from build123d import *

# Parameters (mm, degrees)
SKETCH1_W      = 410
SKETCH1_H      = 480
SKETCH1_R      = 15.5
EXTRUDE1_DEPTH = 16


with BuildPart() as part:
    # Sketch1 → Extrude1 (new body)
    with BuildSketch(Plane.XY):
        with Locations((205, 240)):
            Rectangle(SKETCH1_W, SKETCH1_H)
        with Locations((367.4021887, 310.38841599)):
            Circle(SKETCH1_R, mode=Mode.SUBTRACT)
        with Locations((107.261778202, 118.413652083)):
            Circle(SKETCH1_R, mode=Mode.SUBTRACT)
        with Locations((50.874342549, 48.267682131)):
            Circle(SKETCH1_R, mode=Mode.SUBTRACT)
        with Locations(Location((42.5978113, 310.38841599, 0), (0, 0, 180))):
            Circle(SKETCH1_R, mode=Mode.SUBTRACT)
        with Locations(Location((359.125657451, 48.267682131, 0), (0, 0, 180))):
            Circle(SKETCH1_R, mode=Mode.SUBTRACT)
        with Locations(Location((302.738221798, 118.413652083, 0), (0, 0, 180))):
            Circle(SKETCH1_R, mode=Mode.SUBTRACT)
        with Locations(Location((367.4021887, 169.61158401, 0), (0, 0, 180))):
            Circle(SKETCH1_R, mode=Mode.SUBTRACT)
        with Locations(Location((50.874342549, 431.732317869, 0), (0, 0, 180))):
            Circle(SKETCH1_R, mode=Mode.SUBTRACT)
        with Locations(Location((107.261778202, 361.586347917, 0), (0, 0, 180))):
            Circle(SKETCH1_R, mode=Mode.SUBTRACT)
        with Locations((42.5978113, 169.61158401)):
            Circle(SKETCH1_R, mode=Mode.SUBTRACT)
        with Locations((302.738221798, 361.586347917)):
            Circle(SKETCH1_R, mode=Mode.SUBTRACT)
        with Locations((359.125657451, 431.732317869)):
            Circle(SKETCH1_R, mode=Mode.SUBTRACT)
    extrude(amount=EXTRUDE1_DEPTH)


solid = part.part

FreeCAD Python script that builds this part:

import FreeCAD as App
import Part
import Sketcher

doc = App.newDocument("Part")
body = doc.addObject("PartDesign::Body", "Body")

sketch1 = body.newObject("Sketcher::SketchObject", "Sketch")
sketch1.AttachmentSupport = (doc.getObject("XY_Plane"), [""])
sketch1.MapMode = "FlatFace"
sketch1.addGeometry(Part.LineSegment(App.Vector(0, 480, 0), App.Vector(0, 0, 0)), False)
sketch1.addGeometry(Part.LineSegment(App.Vector(0, 0, 0), App.Vector(410, 0, 0)), False)
sketch1.addGeometry(Part.LineSegment(App.Vector(410, 0, 0), App.Vector(410, 480, 0)), False)
sketch1.addGeometry(Part.LineSegment(App.Vector(410, 480, 0), App.Vector(0, 480, 0)), False)
sketch1.addGeometry(Part.Circle(App.Vector(51, 48, 0), App.Vector(0, 0, 1), 16), False)
sketch1.addGeometry(Part.Circle(App.Vector(107, 118, 0), App.Vector(0, 0, 1), 16), False)
sketch1.addGeometry(Part.Circle(App.Vector(43, 170, 0), App.Vector(0, 0, 1), 16), False)
sketch1.addGeometry(Part.Circle(App.Vector(359, 48, 0), App.Vector(0, 0, 1), 16), False)
sketch1.addGeometry(Part.Circle(App.Vector(303, 118, 0), App.Vector(0, 0, 1), 16), False)
sketch1.addGeometry(Part.Circle(App.Vector(367, 170, 0), App.Vector(0, 0, 1), 16), False)
sketch1.addGeometry(Part.Circle(App.Vector(43, 310, 0), App.Vector(0, 0, 1), 16), False)
sketch1.addGeometry(Part.Circle(App.Vector(107, 362, 0), App.Vector(0, 0, 1), 16), False)
sketch1.addGeometry(Part.Circle(App.Vector(51, 432, 0), App.Vector(0, 0, 1), 16), False)
sketch1.addGeometry(Part.Circle(App.Vector(367, 310, 0), App.Vector(0, 0, 1), 16), False)
sketch1.addGeometry(Part.Circle(App.Vector(303, 362, 0), App.Vector(0, 0, 1), 16), False)
sketch1.addGeometry(Part.Circle(App.Vector(359, 432, 0), App.Vector(0, 0, 1), 16), False)
sketch1.addConstraint(Sketcher.Constraint("Coincident", 0, 2, 1, 1))
sketch1.addConstraint(Sketcher.Constraint("Coincident", 1, 2, 2, 1))
sketch1.addConstraint(Sketcher.Constraint("Coincident", 2, 2, 3, 1))
sketch1.addConstraint(Sketcher.Constraint("Coincident", 3, 2, 0, 1))
sketch1.addConstraint(Sketcher.Constraint("Vertical", 0))
sketch1.addConstraint(Sketcher.Constraint("Horizontal", 1))
sketch1.addConstraint(Sketcher.Constraint("Vertical", 2))
sketch1.addConstraint(Sketcher.Constraint("Horizontal", 3))
sketch1.addConstraint(Sketcher.Constraint("Coincident", 0, 2, -1, 1))
sketch1.addConstraint(Sketcher.Constraint("Equal", 4, 5))
sketch1.addConstraint(Sketcher.Constraint("Equal", 5, 6))
sketch1.addConstraint(Sketcher.Constraint("Equal", 6, 7))
sketch1.addConstraint(Sketcher.Constraint("Equal", 7, 8))
sketch1.addConstraint(Sketcher.Constraint("Equal", 8, 9))
sketch1.addConstraint(Sketcher.Constraint("Equal", 9, 10))
sketch1.addConstraint(Sketcher.Constraint("Equal", 10, 11))
sketch1.addConstraint(Sketcher.Constraint("Equal", 11, 12))
sketch1.addConstraint(Sketcher.Constraint("Equal", 12, 13))
sketch1.addConstraint(Sketcher.Constraint("Equal", 13, 14))
sketch1.addConstraint(Sketcher.Constraint("Equal", 14, 15))
sketch1.addConstraint(Sketcher.Constraint("Horizontal", 4, 3, 7, 3))
sketch1.addConstraint(Sketcher.Constraint("Horizontal", 5, 3, 8, 3))
sketch1.addConstraint(Sketcher.Constraint("Horizontal", 6, 3, 9, 3))
sketch1.addConstraint(Sketcher.Constraint("Horizontal", 10, 3, 13, 3))
sketch1.addConstraint(Sketcher.Constraint("Horizontal", 11, 3, 14, 3))
sketch1.addConstraint(Sketcher.Constraint("Horizontal", 12, 3, 15, 3))
sketch1.addConstraint(Sketcher.Constraint("Vertical", 6, 3, 10, 3))
sketch1.addConstraint(Sketcher.Constraint("Vertical", 5, 3, 11, 3))
sketch1.addConstraint(Sketcher.Constraint("Vertical", 4, 3, 12, 3))
sketch1.addConstraint(Sketcher.Constraint("Vertical", 9, 3, 13, 3))
sketch1.addConstraint(Sketcher.Constraint("Vertical", 8, 3, 14, 3))
sketch1.addConstraint(Sketcher.Constraint("Vertical", 7, 3, 15, 3))
sketch1.addConstraint(Sketcher.Constraint("Diameter", 4, 31.0))
sketch1.addConstraint(Sketcher.Constraint("DistanceX", 1, 1, 1, 2, 410.0))
sketch1.addConstraint(Sketcher.Constraint("DistanceY", 0, 2, 0, 1, 480.0))
sketch1.addConstraint(Sketcher.Constraint("DistanceY", 4, 3, 6, 3, 121.343902))
sketch1.addConstraint(Sketcher.Constraint("DistanceY", 10, 3, 12, 3, 121.343902))
sketch1.addConstraint(Sketcher.Constraint("DistanceX", -1, 1, 5, 3, 107.261778))
sketch1.addConstraint(Sketcher.Constraint("DistanceX", -1, 1, 6, 3, 42.597811))
sketch1.addConstraint(Sketcher.Constraint("DistanceX", -1, 1, 8, 3, 302.738222))
sketch1.addConstraint(Sketcher.Constraint("DistanceX", -1, 1, 9, 3, 367.402189))
sketch1.addConstraint(Sketcher.Constraint("DistanceY", 4, 3, 5, 3, 70.14597))
sketch1.addConstraint(Sketcher.Constraint("DistanceX", 6, 3, 4, 3, 8.276531))
sketch1.addConstraint(Sketcher.Constraint("DistanceX", 5, 3, 7, 3, 251.863879))
sketch1.addConstraint(Sketcher.Constraint("DistanceY", 6, 3, 10, 3, 140.776832))
sketch1.addConstraint(Sketcher.Constraint("DistanceY", 10, 3, 11, 3, 51.197932))
sketch1.addConstraint(Sketcher.Constraint("DistanceY", -1, 1, 4, 3, 48.267682))
pad1 = body.newObject("PartDesign::Pad", "Pad")
pad1.Profile = sketch1
pad1.Length = 16

doc.recompute()
